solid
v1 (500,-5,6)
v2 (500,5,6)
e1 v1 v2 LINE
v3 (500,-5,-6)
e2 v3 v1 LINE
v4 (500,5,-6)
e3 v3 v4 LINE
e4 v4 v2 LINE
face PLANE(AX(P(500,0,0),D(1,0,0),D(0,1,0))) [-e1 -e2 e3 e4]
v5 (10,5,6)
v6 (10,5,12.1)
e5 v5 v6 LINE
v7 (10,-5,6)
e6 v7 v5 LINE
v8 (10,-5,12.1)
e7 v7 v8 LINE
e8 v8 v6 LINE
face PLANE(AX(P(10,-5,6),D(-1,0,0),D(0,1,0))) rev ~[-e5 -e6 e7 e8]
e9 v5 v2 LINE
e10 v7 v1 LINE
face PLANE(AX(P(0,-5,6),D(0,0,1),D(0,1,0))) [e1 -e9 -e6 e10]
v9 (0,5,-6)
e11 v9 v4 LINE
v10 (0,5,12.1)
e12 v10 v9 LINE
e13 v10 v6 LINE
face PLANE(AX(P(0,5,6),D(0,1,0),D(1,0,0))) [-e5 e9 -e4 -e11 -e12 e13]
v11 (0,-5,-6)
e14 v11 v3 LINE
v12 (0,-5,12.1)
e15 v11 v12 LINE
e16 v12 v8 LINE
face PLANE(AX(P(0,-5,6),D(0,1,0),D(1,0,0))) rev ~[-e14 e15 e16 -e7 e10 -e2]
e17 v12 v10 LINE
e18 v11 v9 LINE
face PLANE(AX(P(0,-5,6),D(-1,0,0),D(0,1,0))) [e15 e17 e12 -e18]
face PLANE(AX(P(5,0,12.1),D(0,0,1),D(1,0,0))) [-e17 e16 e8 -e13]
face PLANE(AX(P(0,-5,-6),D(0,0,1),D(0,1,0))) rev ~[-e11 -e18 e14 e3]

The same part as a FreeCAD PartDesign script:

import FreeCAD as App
import Part
import Sketcher
Q = App.Units.Quantity


def add_polygon(sketch, points):
    """Adds a closed chain of lines whose ends are joined by coincident constraints."""
    first, n = sketch.GeometryCount, len(points)
    for a, b in zip(points, points[1:] + points[:1]):
        sketch.addGeometry(Part.LineSegment(App.Vector(*a, 0), App.Vector(*b, 0)), False)
    for i in range(n):
        sketch.addConstraint(Sketcher.Constraint("Coincident", first + i, 2, first + (i + 1) % n, 1))

doc = App.newDocument("Part")
body = doc.addObject("PartDesign::Body", "Body")

sketch1 = body.newObject("Sketcher::SketchObject", "Sketch")
sketch1.AttachmentSupport = (doc.getObject("YZ_Plane"), [""])
sketch1.MapMode = "FlatFace"
add_polygon(sketch1, [(-5, 6), (-5, -6), (5, -6), (5, 6)])
sketch1.addConstraint([
    Sketcher.Constraint("Vertical", 0),
    Sketcher.Constraint("Horizontal", 1),
    Sketcher.Constraint("Vertical", 2),
    Sketcher.Constraint("Horizontal", 3),
    Sketcher.Constraint("Symmetric", 0, 2, 2, 2, -1, 1),
    Sketcher.Constraint("DistanceX", 1, 1, 1, 2, Q("10 mm")),
    Sketcher.Constraint("DistanceY", 0, 2, 0, 1, Q("12 mm")),
])
pad1 = body.newObject("PartDesign::Pad", "Pad")
pad1.Profile = sketch1
pad1.Length = 500

sketch2 = body.newObject("Sketcher::SketchObject", "Sketch001")
sketch2.AttachmentSupport = (doc.getObject("XY_Plane"), [""])
sketch2.MapMode = "FlatFace"
sketch2.AttachmentOffset = App.Placement(App.Vector(0, 0, 6), App.Rotation())
add_polygon(sketch2, [(0, 5), (0, -5), (10, -5), (10, 5)])
sketch2.addConstraint([
    Sketcher.Constraint("Vertical", 0),
    Sketcher.Constraint("Horizontal", 1),
    Sketcher.Constraint("Vertical", 2),
    Sketcher.Constraint("Horizontal", 3),
    Sketcher.Constraint("Symmetric", 0, 2, 3, 2, -1, 1),
    Sketcher.Constraint("Equal", 3, 0),
    Sketcher.Constraint("DistanceX", 1, 1, 1, 2, Q("10 mm")),
])
pad2 = body.newObject("PartDesign::Pad", "Pad001")
pad2.Profile = sketch2
pad2.Length = 6.1

doc.recompute()
